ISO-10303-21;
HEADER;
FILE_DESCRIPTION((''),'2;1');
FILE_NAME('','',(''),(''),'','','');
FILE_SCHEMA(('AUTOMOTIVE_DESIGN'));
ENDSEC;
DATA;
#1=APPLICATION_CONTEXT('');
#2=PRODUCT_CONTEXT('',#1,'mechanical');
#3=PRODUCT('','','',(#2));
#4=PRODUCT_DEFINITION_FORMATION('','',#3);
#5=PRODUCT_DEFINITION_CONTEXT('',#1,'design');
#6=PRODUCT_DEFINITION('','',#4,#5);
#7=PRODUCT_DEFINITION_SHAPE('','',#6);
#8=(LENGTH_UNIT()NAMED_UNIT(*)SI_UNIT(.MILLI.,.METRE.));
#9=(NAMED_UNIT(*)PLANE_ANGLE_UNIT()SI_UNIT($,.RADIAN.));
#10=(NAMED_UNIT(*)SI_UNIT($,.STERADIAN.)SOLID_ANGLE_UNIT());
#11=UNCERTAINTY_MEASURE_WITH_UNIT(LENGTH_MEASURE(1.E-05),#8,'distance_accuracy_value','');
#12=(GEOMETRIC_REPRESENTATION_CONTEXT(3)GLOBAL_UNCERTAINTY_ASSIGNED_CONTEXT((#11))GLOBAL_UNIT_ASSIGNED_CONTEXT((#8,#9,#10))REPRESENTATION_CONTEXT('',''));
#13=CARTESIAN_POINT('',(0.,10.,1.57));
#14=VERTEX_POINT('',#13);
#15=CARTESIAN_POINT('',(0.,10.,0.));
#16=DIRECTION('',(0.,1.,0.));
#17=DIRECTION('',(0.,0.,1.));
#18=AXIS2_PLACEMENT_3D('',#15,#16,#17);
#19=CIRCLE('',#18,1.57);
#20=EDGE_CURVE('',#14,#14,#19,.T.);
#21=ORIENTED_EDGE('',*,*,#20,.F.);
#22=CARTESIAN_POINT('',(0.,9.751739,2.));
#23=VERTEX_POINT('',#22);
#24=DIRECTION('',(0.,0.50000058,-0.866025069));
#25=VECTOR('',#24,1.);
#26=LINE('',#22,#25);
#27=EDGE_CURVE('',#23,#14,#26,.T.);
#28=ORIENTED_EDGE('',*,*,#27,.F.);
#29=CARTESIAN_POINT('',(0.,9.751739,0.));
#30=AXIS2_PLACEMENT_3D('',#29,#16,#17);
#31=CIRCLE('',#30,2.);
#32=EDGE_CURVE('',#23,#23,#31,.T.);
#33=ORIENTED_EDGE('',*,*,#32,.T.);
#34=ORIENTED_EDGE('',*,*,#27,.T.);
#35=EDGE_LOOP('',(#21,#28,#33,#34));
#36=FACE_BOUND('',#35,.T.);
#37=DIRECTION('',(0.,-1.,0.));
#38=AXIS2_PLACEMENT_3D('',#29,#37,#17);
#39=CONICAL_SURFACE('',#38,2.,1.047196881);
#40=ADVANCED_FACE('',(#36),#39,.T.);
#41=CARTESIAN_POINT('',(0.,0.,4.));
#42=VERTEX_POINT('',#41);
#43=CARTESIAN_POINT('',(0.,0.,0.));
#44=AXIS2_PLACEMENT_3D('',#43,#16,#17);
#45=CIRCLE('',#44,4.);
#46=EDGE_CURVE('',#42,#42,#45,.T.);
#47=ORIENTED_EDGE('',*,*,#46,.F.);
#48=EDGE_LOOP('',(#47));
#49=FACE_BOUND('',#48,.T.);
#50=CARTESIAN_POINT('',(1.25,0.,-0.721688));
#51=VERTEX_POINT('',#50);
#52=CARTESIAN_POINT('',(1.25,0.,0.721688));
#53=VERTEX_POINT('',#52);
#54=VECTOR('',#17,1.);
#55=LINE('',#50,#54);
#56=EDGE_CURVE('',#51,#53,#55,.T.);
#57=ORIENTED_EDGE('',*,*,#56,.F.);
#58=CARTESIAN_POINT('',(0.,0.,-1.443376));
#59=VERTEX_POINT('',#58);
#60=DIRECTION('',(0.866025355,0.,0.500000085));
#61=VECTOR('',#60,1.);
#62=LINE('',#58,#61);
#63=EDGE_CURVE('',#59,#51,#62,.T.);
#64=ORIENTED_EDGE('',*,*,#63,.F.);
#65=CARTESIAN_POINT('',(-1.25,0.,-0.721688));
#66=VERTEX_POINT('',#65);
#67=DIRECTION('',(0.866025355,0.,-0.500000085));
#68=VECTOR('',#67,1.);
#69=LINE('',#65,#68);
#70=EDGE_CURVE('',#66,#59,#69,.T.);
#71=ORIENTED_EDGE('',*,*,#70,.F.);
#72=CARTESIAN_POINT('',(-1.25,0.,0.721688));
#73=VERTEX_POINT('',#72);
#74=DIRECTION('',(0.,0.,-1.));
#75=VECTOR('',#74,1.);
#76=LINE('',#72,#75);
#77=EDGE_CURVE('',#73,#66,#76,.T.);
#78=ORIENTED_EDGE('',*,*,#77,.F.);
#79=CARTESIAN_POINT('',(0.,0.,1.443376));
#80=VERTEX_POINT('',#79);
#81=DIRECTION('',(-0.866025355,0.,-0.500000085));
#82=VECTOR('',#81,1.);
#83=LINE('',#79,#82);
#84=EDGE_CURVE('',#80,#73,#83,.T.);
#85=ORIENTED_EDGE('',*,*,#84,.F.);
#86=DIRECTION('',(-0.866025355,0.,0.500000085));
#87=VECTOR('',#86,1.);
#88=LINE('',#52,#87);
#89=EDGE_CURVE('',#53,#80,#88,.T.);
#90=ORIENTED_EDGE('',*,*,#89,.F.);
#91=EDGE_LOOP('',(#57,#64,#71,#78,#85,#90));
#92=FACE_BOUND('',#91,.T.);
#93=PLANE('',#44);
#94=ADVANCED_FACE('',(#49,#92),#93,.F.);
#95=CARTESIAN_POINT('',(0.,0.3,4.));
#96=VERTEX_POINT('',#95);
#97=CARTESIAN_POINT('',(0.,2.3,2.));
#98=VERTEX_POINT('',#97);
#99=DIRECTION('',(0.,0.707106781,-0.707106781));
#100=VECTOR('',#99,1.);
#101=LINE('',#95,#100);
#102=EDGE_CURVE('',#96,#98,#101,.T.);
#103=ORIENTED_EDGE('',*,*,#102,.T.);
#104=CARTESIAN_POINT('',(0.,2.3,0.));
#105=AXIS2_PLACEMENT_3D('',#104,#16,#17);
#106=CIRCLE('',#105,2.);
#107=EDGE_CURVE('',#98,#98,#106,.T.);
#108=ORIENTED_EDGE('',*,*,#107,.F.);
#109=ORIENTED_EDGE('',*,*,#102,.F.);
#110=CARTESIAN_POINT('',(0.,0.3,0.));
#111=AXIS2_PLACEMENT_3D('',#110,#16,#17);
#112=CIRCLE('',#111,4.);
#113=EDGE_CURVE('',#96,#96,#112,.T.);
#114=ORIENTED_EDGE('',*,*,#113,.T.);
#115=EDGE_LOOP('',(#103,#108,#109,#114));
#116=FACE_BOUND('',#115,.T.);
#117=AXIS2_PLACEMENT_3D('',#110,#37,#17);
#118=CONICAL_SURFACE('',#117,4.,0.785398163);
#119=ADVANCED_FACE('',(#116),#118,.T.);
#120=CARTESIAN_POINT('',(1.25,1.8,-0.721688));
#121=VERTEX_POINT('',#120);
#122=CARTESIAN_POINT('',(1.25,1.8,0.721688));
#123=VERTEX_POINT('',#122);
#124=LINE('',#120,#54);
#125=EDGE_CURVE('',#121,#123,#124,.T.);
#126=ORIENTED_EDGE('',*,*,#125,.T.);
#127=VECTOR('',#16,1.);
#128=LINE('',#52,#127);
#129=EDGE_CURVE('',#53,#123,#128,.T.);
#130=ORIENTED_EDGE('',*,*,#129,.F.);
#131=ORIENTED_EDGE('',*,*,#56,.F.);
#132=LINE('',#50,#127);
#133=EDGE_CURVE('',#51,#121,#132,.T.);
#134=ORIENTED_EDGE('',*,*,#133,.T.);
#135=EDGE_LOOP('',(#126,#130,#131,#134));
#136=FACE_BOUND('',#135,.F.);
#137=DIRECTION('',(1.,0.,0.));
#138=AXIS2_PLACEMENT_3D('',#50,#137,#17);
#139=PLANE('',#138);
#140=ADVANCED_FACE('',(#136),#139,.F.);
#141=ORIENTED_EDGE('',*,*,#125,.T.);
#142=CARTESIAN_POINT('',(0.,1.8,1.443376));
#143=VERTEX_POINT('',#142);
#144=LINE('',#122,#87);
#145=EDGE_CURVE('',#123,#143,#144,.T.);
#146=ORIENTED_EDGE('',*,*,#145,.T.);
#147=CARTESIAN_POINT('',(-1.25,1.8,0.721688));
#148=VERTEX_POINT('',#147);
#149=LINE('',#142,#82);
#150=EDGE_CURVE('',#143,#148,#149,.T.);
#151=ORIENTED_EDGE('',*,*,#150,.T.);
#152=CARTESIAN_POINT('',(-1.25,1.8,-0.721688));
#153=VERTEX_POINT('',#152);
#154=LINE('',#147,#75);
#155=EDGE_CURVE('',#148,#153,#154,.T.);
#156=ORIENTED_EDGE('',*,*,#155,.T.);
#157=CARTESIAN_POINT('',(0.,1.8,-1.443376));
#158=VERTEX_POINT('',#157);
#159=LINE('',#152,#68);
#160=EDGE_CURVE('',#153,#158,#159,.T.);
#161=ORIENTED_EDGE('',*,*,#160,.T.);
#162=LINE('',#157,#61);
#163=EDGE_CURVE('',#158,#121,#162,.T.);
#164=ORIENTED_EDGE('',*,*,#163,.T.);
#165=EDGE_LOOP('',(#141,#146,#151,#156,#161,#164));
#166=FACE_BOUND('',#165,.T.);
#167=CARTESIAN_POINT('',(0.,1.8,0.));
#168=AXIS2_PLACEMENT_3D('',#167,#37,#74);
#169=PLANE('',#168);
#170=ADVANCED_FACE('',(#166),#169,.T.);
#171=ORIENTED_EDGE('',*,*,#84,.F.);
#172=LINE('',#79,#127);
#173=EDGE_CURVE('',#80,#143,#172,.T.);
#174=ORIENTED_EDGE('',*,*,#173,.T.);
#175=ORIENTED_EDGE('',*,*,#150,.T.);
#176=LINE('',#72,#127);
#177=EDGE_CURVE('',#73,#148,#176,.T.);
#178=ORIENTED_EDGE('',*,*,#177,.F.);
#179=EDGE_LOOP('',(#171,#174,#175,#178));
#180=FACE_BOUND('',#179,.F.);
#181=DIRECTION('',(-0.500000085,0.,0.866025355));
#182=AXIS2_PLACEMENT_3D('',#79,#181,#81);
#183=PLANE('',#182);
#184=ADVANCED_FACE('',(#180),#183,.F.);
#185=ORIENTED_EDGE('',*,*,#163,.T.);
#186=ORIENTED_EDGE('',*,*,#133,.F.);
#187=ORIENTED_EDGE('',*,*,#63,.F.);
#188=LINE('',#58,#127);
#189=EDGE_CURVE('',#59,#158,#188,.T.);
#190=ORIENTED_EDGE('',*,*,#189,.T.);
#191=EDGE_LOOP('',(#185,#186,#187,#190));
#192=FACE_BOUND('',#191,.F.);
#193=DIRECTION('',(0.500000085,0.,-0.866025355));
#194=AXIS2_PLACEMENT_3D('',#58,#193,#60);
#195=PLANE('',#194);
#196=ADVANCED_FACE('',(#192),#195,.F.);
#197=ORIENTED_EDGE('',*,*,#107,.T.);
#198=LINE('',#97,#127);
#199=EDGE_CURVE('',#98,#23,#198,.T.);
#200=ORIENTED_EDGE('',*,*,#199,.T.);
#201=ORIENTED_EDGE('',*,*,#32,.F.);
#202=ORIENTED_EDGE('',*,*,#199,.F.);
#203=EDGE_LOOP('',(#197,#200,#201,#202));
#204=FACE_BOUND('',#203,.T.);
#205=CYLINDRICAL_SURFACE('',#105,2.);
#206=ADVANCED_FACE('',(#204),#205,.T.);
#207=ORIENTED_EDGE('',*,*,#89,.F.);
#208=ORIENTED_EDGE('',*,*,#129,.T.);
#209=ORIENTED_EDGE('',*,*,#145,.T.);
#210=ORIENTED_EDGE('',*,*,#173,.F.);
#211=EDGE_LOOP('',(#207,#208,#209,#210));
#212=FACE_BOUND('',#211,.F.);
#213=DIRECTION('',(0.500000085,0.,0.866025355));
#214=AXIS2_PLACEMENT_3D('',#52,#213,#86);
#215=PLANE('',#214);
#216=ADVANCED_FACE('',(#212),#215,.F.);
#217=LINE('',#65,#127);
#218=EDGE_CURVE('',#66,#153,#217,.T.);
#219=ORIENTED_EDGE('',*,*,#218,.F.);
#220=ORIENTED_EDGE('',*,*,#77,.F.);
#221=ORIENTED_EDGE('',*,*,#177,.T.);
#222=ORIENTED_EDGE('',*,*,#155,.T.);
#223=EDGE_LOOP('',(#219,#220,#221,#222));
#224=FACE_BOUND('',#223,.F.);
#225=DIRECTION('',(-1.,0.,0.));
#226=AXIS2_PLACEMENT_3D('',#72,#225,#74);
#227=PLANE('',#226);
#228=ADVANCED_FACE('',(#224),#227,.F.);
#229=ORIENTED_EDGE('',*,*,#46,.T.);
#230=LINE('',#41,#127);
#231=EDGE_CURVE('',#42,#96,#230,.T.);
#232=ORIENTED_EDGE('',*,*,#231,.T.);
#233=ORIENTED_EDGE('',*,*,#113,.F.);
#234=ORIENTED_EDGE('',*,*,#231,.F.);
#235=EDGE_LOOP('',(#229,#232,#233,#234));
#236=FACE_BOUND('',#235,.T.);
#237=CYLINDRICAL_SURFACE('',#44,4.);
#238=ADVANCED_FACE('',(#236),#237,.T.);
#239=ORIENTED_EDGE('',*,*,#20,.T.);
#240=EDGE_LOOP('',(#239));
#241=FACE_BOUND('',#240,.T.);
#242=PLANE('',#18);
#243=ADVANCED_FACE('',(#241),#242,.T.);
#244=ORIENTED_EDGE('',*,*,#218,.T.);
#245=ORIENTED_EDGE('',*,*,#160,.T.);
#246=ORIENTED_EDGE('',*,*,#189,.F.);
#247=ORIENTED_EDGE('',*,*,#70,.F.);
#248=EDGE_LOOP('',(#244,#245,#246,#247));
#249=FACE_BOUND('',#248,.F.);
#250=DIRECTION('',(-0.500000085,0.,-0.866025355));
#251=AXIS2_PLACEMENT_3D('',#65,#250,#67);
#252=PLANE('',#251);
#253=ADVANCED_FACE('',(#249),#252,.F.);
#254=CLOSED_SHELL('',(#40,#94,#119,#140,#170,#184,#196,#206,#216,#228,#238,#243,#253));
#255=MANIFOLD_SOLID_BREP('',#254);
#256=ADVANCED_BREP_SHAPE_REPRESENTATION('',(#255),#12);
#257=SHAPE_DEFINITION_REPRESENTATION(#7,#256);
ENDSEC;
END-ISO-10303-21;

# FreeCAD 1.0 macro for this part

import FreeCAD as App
import Part
import Sketcher
Q = App.Units.Quantity


def add_polygon(sketch, points):
    """Adds a closed chain of lines whose ends are joined by coincident constraints."""
    first, n = sketch.GeometryCount, len(points)
    for a, b in zip(points, points[1:] + points[:1]):
        sketch.addGeometry(Part.LineSegment(App.Vector(*a, 0), App.Vector(*b, 0)), False)
    for i in range(n):
        sketch.addConstraint(Sketcher.Constraint("Coincident", first + i, 2, first + (i + 1) % n, 1))

doc = App.newDocument("Part")
body = doc.addObject("PartDesign::Body", "Body")

# Sketch on YZ plane
sketch1 = body.newObject("Sketcher::SketchObject", "Sketch")
sketch1.AttachmentSupport = (doc.getObject("YZ_Plane"), [""])
sketch1.MapMode = "FlatFace"
add_polygon(sketch1, [(0, 4), (0, 0), (10, 0), (10, 1.57), (9.75, 2), (2.3, 2), (0.3, 4)])  # lines 0-6
sketch1.addConstraint([
    Sketcher.Constraint("Vertical", 0),
    Sketcher.Constraint("Horizontal", 1),
    Sketcher.Constraint("Vertical", 2),
    Sketcher.Constraint("Horizontal", 4),
    Sketcher.Constraint("Horizontal", 6),
    Sketcher.Constraint("Coincident", 0, 2, -1, 1),
    Sketcher.Constraint("DistanceX", 1, 1, 1, 2, 10.0),
    Sketcher.Constraint("DistanceY", 0, 2, 0, 1, 4.0),
    Sketcher.Constraint("Angle", 5, Q("135 deg")),
    Sketcher.Constraint("DistanceX", 6, 2, 6, 1, 0.3),
    Sketcher.Constraint("DistanceY", -1, 1, 3, 2, 2.0),
    Sketcher.Constraint("DistanceY", 2, 1, 2, 2, 1.57),
    Sketcher.Constraint("DistanceX", 4, 2, 4, 1, 7.451739),
])
revolution = body.newObject("PartDesign::Revolution", "Revolution")
revolution.Profile = sketch1
revolution.ReferenceAxis = (sketch1, ["H_Axis"])
revolution.Angle = 360

# Sketch on XZ plane
sketch2 = body.newObject("Sketcher::SketchObject", "Sketch001")
sketch2.AttachmentSupport = (doc.getObject("XZ_Plane"), [""])
sketch2.MapMode = "FlatFace"
add_polygon(sketch2, [(1.2, -0.7), (1.2, 0.7), (0, 1.4), (-1.2, 0.7), (-1.2, -0.7), (0, -1.4)])  # lines 0-5
sketch2.addConstraint([
    Sketcher.Constraint("Vertical", 0),
    Sketcher.Constraint("Vertical", 3),
    Sketcher.Constraint("Symmetric", 0, 2, 3, 2, -1, 1),
    Sketcher.Constraint("Symmetric", 1, 2, 4, 2, -1, 1),
    Sketcher.Constraint("PointOnObject", 1, 2, -2),
    Sketcher.Constraint("Parallel", 2, 5),
    Sketcher.Constraint("Horizontal", 0, 2, 2, 2),
    Sketcher.Constraint("Angle", 1, Q("149.999994 deg")),
    Sketcher.Constraint("DistanceX", 2, 2, 0, 2, 2.5),
    Sketcher.Constraint("DistanceY", 0, 1, 0, 2, 1.443376),
])
pocket1 = body.newObject("PartDesign::Pocket", "Pocket")
pocket1.Profile = sketch2
pocket1.Length = 1.8

doc.recompute()
